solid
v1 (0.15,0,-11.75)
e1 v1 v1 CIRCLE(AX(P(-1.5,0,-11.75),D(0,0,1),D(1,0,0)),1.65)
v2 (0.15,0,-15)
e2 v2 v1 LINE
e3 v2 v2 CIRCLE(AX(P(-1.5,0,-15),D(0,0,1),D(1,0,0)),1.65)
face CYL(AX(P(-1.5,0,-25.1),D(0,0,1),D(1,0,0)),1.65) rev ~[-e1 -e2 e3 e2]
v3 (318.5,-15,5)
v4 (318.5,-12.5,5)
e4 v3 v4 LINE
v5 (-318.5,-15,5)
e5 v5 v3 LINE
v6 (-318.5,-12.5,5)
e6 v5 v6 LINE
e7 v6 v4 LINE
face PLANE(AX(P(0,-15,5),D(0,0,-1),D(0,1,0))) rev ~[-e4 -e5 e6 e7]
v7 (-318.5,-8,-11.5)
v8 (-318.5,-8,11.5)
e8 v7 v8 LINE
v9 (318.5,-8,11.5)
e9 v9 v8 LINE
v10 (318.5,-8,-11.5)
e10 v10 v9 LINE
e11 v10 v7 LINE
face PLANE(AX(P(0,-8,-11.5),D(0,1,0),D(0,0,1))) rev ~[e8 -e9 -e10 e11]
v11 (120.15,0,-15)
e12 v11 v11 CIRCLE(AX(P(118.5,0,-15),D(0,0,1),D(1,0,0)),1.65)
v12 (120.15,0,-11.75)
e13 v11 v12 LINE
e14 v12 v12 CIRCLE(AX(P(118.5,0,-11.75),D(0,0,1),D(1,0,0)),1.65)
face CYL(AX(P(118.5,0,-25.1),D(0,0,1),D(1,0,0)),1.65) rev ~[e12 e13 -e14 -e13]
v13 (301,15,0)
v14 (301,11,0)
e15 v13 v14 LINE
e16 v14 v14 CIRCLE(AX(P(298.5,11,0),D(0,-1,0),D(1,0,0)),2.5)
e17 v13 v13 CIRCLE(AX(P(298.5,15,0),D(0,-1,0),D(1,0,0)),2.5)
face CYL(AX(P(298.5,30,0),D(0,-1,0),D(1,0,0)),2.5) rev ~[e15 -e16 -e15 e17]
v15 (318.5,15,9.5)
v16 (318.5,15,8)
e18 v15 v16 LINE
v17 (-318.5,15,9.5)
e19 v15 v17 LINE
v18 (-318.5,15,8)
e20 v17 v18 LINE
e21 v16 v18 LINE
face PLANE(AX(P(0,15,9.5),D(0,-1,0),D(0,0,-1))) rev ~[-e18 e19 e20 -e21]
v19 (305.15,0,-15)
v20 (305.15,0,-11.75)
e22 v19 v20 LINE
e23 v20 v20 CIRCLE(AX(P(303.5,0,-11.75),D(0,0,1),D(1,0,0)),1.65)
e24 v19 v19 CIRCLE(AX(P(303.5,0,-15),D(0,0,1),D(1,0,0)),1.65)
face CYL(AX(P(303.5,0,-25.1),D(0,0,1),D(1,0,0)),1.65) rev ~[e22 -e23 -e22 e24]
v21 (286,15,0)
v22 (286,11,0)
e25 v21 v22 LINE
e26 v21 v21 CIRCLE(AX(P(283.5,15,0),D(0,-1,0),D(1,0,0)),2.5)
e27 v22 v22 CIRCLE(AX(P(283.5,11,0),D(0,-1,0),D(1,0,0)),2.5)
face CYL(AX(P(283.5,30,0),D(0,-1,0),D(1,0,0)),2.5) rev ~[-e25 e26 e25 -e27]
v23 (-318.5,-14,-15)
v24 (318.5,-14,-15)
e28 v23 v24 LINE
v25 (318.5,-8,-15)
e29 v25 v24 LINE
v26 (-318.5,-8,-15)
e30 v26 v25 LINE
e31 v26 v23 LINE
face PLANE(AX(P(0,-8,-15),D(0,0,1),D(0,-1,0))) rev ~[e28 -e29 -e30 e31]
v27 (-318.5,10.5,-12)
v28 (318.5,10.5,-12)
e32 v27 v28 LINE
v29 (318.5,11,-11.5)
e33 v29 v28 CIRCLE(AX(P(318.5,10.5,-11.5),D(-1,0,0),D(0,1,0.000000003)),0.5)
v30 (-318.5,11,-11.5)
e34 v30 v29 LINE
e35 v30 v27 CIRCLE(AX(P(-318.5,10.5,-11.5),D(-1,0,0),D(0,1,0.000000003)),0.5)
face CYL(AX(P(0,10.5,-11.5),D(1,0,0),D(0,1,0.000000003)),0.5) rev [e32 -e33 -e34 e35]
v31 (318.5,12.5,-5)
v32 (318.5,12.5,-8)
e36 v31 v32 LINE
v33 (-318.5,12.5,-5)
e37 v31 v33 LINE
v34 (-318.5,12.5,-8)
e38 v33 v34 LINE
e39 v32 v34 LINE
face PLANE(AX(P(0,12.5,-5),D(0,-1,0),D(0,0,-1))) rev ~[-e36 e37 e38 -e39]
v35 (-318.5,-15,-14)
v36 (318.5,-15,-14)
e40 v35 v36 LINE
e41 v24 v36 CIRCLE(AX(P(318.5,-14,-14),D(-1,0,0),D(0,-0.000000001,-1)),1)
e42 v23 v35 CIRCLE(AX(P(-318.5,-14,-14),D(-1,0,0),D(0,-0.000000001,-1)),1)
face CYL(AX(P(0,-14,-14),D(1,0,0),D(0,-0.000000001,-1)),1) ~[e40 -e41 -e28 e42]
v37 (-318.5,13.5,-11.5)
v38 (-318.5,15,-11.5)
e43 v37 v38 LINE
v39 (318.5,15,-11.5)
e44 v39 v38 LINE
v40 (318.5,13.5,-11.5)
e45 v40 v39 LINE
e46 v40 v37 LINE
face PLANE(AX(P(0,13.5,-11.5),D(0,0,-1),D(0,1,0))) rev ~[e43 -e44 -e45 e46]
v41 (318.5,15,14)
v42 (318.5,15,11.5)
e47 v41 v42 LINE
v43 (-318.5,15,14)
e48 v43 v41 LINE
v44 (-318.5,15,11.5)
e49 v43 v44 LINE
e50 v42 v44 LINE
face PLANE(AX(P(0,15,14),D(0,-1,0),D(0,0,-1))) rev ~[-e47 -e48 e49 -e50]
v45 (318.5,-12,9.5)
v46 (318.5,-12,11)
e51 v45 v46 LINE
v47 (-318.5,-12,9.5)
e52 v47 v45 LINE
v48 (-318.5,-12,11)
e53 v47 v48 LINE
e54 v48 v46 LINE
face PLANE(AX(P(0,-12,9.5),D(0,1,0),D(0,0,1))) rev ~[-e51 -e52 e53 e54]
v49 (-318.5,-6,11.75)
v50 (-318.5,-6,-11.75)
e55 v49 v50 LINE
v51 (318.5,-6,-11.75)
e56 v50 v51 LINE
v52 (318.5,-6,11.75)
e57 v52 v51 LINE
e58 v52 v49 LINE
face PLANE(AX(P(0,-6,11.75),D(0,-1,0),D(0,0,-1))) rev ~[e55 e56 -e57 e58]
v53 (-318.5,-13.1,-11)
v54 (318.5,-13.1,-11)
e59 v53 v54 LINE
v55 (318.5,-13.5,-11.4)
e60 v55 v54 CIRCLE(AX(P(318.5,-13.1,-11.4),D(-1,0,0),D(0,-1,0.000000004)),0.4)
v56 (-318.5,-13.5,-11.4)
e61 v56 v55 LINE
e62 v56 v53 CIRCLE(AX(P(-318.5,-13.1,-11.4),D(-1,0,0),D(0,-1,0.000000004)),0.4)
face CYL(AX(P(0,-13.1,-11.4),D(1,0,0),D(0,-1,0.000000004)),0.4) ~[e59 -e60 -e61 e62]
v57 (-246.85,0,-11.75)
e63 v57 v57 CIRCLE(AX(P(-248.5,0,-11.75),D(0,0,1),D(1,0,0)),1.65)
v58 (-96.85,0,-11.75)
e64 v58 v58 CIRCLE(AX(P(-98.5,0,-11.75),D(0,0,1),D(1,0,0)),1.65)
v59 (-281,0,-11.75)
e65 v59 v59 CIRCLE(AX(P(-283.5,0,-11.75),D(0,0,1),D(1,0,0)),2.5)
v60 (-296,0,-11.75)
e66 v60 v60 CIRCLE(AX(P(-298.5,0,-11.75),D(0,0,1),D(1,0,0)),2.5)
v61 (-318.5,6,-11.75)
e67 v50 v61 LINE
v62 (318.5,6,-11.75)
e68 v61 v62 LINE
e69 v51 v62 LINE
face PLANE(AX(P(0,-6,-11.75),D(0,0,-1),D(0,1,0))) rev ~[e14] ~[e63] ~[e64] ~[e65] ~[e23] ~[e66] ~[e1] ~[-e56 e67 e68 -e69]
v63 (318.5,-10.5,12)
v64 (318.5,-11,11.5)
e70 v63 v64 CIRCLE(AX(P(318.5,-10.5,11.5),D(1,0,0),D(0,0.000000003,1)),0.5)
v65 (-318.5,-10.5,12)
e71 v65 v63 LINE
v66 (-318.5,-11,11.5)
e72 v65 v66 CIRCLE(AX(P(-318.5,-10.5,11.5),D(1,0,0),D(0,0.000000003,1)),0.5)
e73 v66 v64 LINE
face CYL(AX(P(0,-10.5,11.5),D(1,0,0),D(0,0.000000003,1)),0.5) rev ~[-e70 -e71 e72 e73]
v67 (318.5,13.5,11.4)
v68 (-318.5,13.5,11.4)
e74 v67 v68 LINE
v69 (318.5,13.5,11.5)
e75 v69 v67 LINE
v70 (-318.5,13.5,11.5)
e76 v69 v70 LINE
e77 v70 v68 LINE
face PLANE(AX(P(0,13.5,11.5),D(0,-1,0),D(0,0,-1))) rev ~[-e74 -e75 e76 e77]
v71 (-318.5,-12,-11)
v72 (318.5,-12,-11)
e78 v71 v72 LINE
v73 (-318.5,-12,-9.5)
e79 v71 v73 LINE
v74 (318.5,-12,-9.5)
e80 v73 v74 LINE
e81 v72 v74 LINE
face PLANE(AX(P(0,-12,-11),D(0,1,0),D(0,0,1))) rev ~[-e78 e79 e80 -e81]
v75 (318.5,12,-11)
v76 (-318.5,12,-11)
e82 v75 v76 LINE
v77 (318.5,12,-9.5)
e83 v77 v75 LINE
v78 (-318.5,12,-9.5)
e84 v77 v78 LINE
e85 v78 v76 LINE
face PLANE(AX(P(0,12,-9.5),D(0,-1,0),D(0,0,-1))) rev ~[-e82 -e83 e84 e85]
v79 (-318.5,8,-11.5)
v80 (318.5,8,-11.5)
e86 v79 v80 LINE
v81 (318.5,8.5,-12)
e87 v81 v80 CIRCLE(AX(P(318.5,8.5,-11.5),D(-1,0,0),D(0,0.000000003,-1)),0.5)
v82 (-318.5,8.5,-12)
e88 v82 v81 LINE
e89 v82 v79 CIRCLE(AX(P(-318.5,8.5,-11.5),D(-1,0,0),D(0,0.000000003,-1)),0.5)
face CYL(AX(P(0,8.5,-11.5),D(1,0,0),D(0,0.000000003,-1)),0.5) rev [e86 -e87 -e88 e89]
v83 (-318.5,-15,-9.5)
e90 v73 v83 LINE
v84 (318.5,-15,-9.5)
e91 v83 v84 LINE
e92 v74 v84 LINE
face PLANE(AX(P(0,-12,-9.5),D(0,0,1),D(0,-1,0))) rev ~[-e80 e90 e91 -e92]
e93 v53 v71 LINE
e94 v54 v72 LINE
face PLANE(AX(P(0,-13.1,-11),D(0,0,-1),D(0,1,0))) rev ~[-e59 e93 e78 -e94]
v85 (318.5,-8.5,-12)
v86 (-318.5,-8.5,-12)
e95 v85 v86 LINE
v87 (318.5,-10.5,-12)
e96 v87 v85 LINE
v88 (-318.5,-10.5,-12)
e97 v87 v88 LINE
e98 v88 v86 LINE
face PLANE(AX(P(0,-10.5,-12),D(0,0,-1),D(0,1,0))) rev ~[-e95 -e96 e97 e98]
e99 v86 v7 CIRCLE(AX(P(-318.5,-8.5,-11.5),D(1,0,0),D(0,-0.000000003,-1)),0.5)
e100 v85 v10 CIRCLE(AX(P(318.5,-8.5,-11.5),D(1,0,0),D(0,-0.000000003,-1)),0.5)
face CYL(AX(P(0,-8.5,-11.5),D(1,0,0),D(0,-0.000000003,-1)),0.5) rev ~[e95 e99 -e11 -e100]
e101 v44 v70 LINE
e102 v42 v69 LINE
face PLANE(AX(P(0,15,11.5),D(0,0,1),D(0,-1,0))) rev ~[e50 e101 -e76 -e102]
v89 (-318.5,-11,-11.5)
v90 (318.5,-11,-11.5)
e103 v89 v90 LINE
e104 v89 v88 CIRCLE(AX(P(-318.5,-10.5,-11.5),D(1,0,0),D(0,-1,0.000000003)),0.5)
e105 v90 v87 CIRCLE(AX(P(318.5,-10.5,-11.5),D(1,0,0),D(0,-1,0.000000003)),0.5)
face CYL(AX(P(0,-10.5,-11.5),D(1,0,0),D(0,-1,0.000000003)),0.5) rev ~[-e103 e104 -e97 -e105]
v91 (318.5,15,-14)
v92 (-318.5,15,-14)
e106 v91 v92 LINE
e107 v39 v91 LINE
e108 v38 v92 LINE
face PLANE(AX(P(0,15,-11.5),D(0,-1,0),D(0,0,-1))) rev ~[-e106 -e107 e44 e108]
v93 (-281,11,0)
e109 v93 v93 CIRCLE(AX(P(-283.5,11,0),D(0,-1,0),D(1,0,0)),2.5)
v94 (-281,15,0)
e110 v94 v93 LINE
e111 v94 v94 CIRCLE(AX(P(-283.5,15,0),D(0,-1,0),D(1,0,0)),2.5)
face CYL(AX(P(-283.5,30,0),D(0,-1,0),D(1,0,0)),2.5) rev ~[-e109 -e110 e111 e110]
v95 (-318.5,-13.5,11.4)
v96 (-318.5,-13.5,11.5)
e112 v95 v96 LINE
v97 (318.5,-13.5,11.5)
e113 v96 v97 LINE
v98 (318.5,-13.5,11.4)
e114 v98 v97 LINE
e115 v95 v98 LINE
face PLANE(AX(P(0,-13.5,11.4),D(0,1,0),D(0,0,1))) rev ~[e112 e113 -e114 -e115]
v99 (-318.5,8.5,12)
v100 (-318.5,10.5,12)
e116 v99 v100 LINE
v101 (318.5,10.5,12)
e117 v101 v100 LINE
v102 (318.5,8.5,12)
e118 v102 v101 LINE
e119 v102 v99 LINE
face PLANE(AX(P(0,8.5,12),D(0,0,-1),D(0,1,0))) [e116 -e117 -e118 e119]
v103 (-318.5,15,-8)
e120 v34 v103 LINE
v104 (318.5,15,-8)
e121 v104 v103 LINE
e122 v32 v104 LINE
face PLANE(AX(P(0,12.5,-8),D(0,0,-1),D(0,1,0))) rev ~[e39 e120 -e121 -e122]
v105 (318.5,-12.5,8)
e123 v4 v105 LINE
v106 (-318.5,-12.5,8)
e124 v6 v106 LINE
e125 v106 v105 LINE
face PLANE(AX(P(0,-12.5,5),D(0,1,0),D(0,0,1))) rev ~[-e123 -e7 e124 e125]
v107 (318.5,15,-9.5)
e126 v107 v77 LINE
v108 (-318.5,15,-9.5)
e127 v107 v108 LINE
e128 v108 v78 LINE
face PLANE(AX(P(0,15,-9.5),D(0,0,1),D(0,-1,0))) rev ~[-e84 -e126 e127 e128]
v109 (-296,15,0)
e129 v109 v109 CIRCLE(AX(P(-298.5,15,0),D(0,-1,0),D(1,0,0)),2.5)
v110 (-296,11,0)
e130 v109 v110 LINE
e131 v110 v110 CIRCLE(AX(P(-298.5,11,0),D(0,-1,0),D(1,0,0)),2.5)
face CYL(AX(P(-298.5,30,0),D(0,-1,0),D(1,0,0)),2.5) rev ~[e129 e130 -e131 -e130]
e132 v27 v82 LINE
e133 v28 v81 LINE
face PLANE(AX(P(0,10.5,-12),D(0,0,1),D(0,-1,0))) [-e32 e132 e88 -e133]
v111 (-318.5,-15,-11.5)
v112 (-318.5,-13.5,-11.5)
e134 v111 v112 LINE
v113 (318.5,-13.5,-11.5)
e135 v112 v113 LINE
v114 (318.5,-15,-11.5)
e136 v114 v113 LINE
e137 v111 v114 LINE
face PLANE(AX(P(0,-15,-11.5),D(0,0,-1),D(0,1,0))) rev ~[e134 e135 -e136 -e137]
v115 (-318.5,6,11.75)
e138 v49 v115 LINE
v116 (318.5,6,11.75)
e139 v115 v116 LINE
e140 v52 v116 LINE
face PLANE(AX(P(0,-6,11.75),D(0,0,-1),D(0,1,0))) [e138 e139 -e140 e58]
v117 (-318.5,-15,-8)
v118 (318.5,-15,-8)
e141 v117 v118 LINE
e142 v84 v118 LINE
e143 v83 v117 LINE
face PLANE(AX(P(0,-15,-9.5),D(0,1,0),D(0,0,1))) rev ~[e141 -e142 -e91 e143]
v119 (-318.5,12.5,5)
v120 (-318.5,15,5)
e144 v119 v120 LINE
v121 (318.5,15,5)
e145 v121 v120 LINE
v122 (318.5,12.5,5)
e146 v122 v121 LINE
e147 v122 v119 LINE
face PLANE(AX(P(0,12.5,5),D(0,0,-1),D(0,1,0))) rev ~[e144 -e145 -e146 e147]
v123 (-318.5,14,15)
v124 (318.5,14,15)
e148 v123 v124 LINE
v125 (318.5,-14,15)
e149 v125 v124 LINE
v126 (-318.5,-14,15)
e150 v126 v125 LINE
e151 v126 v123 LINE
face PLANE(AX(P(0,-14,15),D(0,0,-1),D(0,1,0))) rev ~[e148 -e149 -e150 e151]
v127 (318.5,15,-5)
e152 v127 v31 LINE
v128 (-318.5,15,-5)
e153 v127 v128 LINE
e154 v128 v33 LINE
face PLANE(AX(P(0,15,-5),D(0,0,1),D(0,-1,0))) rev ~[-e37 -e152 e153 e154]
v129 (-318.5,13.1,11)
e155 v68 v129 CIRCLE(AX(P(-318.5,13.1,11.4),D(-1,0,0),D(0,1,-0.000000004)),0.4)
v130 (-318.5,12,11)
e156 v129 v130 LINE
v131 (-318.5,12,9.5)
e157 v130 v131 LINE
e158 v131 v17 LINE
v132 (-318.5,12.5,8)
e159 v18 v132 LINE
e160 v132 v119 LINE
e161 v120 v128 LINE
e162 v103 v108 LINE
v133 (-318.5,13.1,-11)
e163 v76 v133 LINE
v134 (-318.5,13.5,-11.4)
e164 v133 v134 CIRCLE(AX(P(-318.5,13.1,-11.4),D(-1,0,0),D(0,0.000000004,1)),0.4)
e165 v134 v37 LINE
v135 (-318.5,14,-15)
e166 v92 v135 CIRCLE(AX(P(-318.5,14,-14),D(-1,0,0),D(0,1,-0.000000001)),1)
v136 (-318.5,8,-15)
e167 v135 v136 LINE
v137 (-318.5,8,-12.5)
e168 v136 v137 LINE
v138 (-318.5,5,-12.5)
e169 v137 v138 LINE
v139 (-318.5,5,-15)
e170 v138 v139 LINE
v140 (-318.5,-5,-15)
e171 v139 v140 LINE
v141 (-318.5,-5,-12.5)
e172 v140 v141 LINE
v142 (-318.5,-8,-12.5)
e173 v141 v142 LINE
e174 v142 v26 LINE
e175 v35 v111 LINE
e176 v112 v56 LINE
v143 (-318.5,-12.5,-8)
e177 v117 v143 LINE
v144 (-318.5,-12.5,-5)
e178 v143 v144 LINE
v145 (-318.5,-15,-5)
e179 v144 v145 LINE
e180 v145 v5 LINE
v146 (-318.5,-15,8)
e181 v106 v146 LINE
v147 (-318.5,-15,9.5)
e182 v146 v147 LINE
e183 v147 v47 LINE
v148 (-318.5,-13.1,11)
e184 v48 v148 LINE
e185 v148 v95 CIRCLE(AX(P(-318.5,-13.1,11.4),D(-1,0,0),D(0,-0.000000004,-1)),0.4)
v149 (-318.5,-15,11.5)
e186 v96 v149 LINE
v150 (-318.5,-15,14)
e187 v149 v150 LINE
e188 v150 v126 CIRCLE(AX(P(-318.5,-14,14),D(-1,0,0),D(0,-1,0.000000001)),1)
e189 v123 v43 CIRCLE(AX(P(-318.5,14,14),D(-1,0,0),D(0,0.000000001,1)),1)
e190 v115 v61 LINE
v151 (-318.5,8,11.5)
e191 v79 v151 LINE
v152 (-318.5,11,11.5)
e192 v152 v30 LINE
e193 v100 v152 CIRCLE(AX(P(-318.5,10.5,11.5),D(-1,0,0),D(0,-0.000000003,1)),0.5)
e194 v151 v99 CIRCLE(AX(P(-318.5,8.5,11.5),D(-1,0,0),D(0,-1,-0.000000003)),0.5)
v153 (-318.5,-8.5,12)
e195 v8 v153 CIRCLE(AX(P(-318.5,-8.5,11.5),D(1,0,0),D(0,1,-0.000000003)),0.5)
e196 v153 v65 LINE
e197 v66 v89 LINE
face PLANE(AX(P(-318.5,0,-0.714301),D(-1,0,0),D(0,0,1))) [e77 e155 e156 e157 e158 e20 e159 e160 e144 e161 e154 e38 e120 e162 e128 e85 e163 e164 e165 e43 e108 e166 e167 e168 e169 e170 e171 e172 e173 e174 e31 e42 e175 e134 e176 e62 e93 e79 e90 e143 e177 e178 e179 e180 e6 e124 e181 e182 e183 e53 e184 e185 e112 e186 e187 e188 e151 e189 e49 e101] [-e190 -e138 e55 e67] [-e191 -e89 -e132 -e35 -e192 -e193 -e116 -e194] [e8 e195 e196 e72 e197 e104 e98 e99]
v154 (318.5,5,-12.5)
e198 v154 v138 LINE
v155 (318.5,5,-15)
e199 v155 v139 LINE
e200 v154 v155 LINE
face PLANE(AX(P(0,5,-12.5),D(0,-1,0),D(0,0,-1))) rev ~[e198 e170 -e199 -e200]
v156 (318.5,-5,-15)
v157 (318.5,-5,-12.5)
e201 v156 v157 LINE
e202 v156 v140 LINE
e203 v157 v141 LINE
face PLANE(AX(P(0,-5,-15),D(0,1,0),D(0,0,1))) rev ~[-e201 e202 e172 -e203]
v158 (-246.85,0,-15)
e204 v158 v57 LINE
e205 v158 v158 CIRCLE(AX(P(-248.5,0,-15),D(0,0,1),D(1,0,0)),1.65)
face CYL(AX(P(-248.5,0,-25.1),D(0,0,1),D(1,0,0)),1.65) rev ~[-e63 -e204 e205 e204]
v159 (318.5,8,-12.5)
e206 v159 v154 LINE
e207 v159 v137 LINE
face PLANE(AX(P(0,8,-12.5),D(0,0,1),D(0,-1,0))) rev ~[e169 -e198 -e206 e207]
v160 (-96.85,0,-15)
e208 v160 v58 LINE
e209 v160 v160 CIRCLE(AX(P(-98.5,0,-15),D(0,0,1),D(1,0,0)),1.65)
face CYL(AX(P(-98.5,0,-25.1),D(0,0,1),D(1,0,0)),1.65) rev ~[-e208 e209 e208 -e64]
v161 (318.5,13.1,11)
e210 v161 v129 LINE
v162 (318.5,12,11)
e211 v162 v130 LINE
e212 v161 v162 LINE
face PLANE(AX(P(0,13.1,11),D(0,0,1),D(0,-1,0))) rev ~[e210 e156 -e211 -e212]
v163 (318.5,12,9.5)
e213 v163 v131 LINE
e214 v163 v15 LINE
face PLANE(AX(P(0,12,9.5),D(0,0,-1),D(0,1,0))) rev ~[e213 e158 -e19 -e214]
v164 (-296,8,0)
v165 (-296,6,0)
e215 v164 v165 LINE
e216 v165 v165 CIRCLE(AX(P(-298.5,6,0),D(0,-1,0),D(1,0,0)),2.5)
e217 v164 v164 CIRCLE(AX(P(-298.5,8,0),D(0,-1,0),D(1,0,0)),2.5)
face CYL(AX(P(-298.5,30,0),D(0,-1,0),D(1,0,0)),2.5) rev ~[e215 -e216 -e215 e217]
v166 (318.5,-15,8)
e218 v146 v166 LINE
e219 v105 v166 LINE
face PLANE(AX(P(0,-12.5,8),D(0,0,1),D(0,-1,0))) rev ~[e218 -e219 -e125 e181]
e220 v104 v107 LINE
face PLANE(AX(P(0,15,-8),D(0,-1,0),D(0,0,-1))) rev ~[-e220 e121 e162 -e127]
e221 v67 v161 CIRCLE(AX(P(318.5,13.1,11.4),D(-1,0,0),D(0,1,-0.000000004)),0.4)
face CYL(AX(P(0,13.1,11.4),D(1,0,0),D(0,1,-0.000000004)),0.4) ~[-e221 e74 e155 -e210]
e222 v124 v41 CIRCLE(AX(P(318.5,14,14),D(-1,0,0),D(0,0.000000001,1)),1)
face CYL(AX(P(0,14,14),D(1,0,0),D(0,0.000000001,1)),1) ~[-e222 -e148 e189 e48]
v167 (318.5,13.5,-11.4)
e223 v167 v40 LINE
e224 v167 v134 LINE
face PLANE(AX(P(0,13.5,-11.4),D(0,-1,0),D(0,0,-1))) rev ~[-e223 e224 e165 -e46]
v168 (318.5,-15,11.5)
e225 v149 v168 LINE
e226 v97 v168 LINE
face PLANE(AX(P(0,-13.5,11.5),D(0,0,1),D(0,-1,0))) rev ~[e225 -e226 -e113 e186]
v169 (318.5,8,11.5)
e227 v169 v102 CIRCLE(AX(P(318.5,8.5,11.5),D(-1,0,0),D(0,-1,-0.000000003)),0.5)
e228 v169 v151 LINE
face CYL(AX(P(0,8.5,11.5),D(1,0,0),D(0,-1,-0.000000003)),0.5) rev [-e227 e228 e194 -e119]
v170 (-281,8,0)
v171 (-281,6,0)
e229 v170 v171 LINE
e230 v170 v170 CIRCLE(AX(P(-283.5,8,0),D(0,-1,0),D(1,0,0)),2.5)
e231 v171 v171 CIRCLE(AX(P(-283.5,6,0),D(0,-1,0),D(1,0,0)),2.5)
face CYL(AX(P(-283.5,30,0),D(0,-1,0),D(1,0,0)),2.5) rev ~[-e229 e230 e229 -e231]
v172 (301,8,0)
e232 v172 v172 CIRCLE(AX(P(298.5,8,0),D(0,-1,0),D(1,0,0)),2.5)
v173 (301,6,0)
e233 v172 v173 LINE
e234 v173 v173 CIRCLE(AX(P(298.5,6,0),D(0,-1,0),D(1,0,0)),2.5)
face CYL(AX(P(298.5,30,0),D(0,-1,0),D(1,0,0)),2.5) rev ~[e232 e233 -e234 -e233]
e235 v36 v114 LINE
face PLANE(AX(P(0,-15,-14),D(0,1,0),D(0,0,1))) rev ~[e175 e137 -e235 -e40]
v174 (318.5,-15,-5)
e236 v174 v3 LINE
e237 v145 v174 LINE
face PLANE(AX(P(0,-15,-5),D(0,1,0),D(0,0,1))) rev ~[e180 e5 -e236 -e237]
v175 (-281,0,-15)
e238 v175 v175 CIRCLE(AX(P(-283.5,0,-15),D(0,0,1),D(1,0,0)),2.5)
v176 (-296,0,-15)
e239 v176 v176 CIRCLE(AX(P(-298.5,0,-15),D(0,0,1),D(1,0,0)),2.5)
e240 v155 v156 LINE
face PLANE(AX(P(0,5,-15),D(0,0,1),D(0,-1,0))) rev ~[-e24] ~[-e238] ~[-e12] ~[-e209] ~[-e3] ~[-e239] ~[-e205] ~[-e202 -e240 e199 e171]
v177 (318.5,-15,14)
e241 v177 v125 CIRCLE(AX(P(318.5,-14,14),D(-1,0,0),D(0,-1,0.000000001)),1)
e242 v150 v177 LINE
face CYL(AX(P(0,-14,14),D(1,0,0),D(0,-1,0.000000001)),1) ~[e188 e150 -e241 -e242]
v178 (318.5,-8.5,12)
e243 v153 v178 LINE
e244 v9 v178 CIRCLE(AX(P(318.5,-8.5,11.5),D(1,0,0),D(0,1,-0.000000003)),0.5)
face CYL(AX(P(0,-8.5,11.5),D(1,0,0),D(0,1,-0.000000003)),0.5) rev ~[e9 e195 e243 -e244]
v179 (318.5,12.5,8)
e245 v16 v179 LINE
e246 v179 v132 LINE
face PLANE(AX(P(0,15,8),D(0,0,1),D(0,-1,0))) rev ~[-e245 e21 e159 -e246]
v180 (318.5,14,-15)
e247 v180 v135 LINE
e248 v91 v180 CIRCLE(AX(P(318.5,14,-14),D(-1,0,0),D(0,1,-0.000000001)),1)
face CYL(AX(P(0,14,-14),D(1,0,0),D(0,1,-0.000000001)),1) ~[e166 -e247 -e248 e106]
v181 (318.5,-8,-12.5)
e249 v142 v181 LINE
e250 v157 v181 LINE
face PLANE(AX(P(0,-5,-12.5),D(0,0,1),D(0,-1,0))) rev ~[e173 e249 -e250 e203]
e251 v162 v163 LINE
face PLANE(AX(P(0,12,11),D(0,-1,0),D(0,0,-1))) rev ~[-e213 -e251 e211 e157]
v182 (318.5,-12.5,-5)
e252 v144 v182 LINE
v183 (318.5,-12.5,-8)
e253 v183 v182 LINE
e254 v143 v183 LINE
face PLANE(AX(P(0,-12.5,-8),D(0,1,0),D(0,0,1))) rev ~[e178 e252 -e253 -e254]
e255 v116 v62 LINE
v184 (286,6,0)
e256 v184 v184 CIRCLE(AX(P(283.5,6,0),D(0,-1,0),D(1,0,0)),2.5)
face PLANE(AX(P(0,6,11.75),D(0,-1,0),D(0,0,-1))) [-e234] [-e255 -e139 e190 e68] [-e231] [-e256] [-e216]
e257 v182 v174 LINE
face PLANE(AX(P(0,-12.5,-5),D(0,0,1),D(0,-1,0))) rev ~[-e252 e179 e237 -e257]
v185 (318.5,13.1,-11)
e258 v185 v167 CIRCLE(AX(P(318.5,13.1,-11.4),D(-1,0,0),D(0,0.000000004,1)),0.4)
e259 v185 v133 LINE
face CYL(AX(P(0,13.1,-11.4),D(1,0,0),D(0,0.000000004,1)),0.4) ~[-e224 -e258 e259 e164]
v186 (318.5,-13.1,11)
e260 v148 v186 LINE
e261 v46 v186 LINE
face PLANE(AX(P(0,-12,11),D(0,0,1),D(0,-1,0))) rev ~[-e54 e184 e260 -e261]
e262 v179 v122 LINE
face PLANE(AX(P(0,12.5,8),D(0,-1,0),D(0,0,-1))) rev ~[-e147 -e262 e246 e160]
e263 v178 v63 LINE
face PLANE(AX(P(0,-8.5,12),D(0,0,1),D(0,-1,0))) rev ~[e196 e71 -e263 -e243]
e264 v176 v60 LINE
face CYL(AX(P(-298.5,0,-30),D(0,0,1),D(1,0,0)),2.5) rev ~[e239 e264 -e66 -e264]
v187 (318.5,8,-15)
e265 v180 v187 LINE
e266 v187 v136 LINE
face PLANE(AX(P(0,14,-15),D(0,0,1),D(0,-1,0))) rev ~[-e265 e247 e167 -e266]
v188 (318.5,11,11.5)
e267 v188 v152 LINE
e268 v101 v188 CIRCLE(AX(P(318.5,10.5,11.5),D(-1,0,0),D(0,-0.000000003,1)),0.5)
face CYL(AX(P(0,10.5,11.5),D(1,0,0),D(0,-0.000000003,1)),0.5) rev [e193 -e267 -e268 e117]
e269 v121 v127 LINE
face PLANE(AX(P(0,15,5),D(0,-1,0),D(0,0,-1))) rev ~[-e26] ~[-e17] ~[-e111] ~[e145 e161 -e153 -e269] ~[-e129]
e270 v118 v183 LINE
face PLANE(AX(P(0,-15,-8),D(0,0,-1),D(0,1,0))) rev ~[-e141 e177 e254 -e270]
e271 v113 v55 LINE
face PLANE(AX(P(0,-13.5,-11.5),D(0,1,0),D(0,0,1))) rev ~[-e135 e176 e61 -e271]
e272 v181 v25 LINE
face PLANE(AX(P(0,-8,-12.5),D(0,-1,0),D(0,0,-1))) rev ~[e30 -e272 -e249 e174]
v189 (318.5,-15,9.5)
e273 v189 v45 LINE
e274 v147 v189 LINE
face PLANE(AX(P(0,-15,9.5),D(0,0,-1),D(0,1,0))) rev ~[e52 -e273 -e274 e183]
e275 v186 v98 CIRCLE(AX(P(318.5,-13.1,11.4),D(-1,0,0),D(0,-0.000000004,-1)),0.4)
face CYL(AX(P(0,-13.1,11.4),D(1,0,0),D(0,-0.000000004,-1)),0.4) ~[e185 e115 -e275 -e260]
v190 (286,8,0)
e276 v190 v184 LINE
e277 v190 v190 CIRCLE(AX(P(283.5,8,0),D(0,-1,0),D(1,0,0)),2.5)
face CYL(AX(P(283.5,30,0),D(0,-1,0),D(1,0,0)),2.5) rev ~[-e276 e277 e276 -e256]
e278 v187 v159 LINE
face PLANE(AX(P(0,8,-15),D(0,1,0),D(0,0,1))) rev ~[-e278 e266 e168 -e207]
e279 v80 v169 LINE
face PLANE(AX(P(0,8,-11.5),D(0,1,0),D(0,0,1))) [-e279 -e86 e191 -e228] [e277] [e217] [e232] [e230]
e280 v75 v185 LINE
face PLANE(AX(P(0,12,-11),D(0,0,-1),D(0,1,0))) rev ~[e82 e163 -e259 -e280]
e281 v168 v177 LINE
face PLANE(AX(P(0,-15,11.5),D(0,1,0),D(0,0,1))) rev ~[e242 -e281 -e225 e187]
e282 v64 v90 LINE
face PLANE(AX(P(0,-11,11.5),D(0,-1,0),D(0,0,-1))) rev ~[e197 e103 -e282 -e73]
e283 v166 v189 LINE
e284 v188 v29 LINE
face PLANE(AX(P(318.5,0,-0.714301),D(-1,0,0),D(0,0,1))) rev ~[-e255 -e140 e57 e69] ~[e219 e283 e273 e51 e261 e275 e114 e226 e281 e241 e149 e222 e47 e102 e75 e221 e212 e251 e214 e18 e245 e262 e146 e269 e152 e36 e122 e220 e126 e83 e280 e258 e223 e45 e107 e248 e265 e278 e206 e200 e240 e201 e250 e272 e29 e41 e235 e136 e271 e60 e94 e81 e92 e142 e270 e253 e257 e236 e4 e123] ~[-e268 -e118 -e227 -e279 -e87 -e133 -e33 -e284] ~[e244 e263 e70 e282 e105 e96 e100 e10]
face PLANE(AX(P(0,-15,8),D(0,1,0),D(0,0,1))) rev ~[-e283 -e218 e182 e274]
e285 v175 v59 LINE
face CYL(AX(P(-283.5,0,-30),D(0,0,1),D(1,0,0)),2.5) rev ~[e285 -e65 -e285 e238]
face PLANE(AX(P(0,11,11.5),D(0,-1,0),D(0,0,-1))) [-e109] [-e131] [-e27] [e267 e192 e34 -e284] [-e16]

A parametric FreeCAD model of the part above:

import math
import FreeCAD as App
import Part
import Sketcher
from FreeCAD import Vector


def add_polygon(sketch, points):
    """Adds a closed chain of lines whose ends are joined by coincident constraints."""
    first, n = sketch.GeometryCount, len(points)
    for a, b in zip(points, points[1:] + points[:1]):
        sketch.addGeometry(Part.LineSegment(App.Vector(*a, 0), App.Vector(*b, 0)), False)
    for i in range(n):
        sketch.addConstraint(Sketcher.Constraint("Coincident", first + i, 2, first + (i + 1) % n, 1))

doc = App.newDocument("Part")
body = doc.addObject("PartDesign::Body", "Body")

# Sketch on YZ plane
sketch1 = body.newObject("Sketcher::SketchObject", "Sketch")
sketch1.AttachmentSupport = (doc.getObject("YZ_Plane"), [""])
sketch1.MapMode = "FlatFace"
sketch1.addGeometry(Part.LineSegment(Vector(15, 11.5, 0), Vector(15, 14, 0)), False)  # 0
sketch1.addGeometry(Part.ArcOfCircle(Part.Circle(Vector(14, 14, 0), Vector(0, 0, 1), 1), math.radians(0), math.radians(90)), False)  # 1
sketch1.addGeometry(Part.LineSegment(Vector(14, 15, 0), Vector(-14, 15, 0)), False)  # 2
sketch1.addGeometry(Part.ArcOfCircle(Part.Circle(Vector(-14, 14, 0), Vector(0, 0, 1), 1), math.radians(90), math.radians(180)), False)  # 3
sketch1.addGeometry(Part.LineSegment(Vector(-15, 14, 0), Vector(-15, 11.5, 0)), False)  # 4
sketch1.addGeometry(Part.LineSegment(Vector(-15, 11.5, 0), Vector(-13.5, 11.5, 0)), False)  # 5
sketch1.addGeometry(Part.LineSegment(Vector(-13.5, 11.5, 0), Vector(-13.5, 11.4, 0)), False)  # 6
sketch1.addGeometry(Part.ArcOfCircle(Part.Circle(Vector(-13.1, 11.4, 0), Vector(0, 0, 1), 0.4), math.radians(-180), math.radians(-90)), False)  # 7
sketch1.addGeometry(Part.LineSegment(Vector(-13.1, 11, 0), Vector(-12, 11, 0)), False)  # 8
sketch1.addGeometry(Part.LineSegment(Vector(-12, 11, 0), Vector(-12, 9.5, 0)), False)  # 9
sketch1.addGeometry(Part.LineSegment(Vector(-12, 9.5, 0), Vector(-15, 9.5, 0)), False)  # 10
sketch1.addGeometry(Part.LineSegment(Vector(-15, 9.5, 0), Vector(-15, 8, 0)), False)  # 11
sketch1.addGeometry(Part.LineSegment(Vector(-15, 8, 0), Vector(-12.5, 8, 0)), False)  # 12
sketch1.addGeometry(Part.LineSegment(Vector(-12.5, 8, 0), Vector(-12.5, 5, 0)), False)  # 13
sketch1.addGeometry(Part.LineSegment(Vector(-12.5, 5, 0), Vector(-15, 5, 0)), False)  # 14
sketch1.addGeometry(Part.LineSegment(Vector(-15, 5, 0), Vector(-15, -5, 0)), False)  # 15
sketch1.addGeometry(Part.LineSegment(Vector(-15, -5, 0), Vector(-12.5, -5, 0)), False)  # 16
sketch1.addGeometry(Part.LineSegment(Vector(-12.5, -5, 0), Vector(-12.5, -8, 0)), False)  # 17
sketch1.addGeometry(Part.LineSegment(Vector(-12.5, -8, 0), Vector(-15, -8, 0)), False)  # 18
sketch1.addGeometry(Part.LineSegment(Vector(-15, -8, 0), Vector(-15, -9.5, 0)), False)  # 19
sketch1.addGeometry(Part.LineSegment(Vector(-15, -9.5, 0), Vector(-12, -9.5, 0)), False)  # 20
sketch1.addGeometry(Part.LineSegment(Vector(-12, -9.5, 0), Vector(-12, -11, 0)), False)  # 21
sketch1.addGeometry(Part.LineSegment(Vector(-12, -11, 0), Vector(-13.1, -11, 0)), False)  # 22
sketch1.addGeometry(Part.ArcOfCircle(Part.Circle(Vector(-13.1, -11.4, 0), Vector(0, 0, 1), 0.4), math.radians(90), math.radians(180)), False)  # 23
sketch1.addGeometry(Part.LineSegment(Vector(-13.5, -11.4, 0), Vector(-13.5, -11.5, 0)), False)  # 24
sketch1.addGeometry(Part.LineSegment(Vector(-13.5, -11.5, 0), Vector(-15, -11.5, 0)), False)  # 25
sketch1.addGeometry(Part.LineSegment(Vector(-15, -11.5, 0), Vector(-15, -14, 0)), False)  # 26
sketch1.addGeometry(Part.ArcOfCircle(Part.Circle(Vector(-14, -14, 0), Vector(0, 0, 1), 1), math.radians(-180), math.radians(-90)), False)  # 27
sketch1.addGeometry(Part.LineSegment(Vector(-14, -15, 0), Vector(-8, -15, 0)), False)  # 28
sketch1.addGeometry(Part.LineSegment(Vector(-8, -15, 0), Vector(-8, -12.5, 0)), False)  # 29
sketch1.addGeometry(Part.LineSegment(Vector(-8, -12.5, 0), Vector(-5, -12.5, 0)), False)  # 30
sketch1.addGeometry(Part.LineSegment(Vector(-5, -12.5, 0), Vector(-5, -15, 0)), False)  # 31
sketch1.addGeometry(Part.LineSegment(Vector(-5, -15, 0), Vector(5, -15, 0)), False)  # 32
sketch1.addGeometry(Part.LineSegment(Vector(5, -15, 0), Vector(5, -12.5, 0)), False)  # 33
sketch1.addGeometry(Part.LineSegment(Vector(5, -12.5, 0), Vector(8, -12.5, 0)), False)  # 34
sketch1.addGeometry(Part.LineSegment(Vector(8, -12.5, 0), Vector(8, -15, 0)), False)  # 35
sketch1.addGeometry(Part.LineSegment(Vector(8, -15, 0), Vector(14, -15, 0)), False)  # 36
sketch1.addGeometry(Part.ArcOfCircle(Part.Circle(Vector(14, -14, 0), Vector(0, 0, 1), 1), math.radians(-90), math.radians(0)), False)  # 37
sketch1.addGeometry(Part.LineSegment(Vector(15, -14, 0), Vector(15, -11.5, 0)), False)  # 38
sketch1.addGeometry(Part.LineSegment(Vector(15, -11.5, 0), Vector(13.5, -11.5, 0)), False)  # 39
sketch1.addGeometry(Part.LineSegment(Vector(13.5, -11.5, 0), Vector(13.5, -11.4, 0)), False)  # 40
sketch1.addGeometry(Part.ArcOfCircle(Part.Circle(Vector(13.1, -11.4, 0), Vector(0, 0, 1), 0.4), math.radians(0), math.radians(90)), False)  # 41
sketch1.addGeometry(Part.LineSegment(Vector(13.1, -11, 0), Vector(12, -11, 0)), False)  # 42
sketch1.addGeometry(Part.LineSegment(Vector(12, -11, 0), Vector(12, -9.5, 0)), False)  # 43
sketch1.addGeometry(Part.LineSegment(Vector(12, -9.5, 0), Vector(15, -9.5, 0)), False)  # 44
sketch1.addGeometry(Part.LineSegment(Vector(15, -9.5, 0), Vector(15, -8, 0)), False)  # 45
sketch1.addGeometry(Part.LineSegment(Vector(15, -8, 0), Vector(12.5, -8, 0)), False)  # 46
sketch1.addGeometry(Part.LineSegment(Vector(12.5, -8, 0), Vector(12.5, -5, 0)), False)  # 47
sketch1.addGeometry(Part.LineSegment(Vector(12.5, -5, 0), Vector(15, -5, 0)), False)  # 48
sketch1.addGeometry(Part.LineSegment(Vector(15, -5, 0), Vector(15, 5, 0)), False)  # 49
sketch1.addGeometry(Part.LineSegment(Vector(15, 5, 0), Vector(12.5, 5, 0)), False)  # 50
sketch1.addGeometry(Part.LineSegment(Vector(12.5, 5, 0), Vector(12.5, 8, 0)), False)  # 51
sketch1.addGeometry(Part.LineSegment(Vector(12.5, 8, 0), Vector(15, 8, 0)), False)  # 52
sketch1.addGeometry(Part.LineSegment(Vector(15, 8, 0), Vector(15, 9.5, 0)), False)  # 53
sketch1.addGeometry(Part.LineSegment(Vector(15, 9.5, 0), Vector(12, 9.5, 0)), False)  # 54
sketch1.addGeometry(Part.LineSegment(Vector(12, 9.5, 0), Vector(12, 11, 0)), False)  # 55
sketch1.addGeometry(Part.LineSegment(Vector(12, 11, 0), Vector(13.1, 11, 0)), False)  # 56
sketch1.addGeometry(Part.ArcOfCircle(Part.Circle(Vector(13.1, 11.4, 0), Vector(0, 0, 1), 0.4), math.radians(-90), math.radians(0)), False)  # 57
sketch1.addGeometry(Part.LineSegment(Vector(13.5, 11.4, 0), Vector(13.5, 11.5, 0)), False)  # 58
sketch1.addGeometry(Part.LineSegment(Vector(13.5, 11.5, 0), Vector(15, 11.5, 0)), False)  # 59
sketch1.addGeometry(Part.ArcOfCircle(Part.Circle(Vector(-10.5, -11.5, 0), Vector(0, 0, 1), 0.5), math.radians(180), math.radians(270)), False)  # 60
sketch1.addGeometry(Part.LineSegment(Vector(-11, -11.5, 0), Vector(-11, 11.5, 0)), False)  # 61
sketch1.addGeometry(Part.ArcOfCircle(Part.Circle(Vector(-10.5, 11.5, 0), Vector(0, 0, 1), 0.5), math.radians(90), math.radians(180)), False)  # 62
sketch1.addGeometry(Part.LineSegment(Vector(-10.5, 12, 0), Vector(-8.5, 12, 0)), False)  # 63
sketch1.addGeometry(Part.ArcOfCircle(Part.Circle(Vector(-8.5, 11.5, 0), Vector(0, 0, 1), 0.5), math.radians(0), math.radians(90)), False)  # 64
sketch1.addGeometry(Part.LineSegment(Vector(-8, 11.5, 0), Vector(-8, -11.5, 0)), False)  # 65
sketch1.addGeometry(Part.ArcOfCircle(Part.Circle(Vector(-8.5, -11.5, 0), Vector(0, 0, 1), 0.5), math.radians(-90), math.radians(0)), False)  # 66
sketch1.addGeometry(Part.LineSegment(Vector(-8.5, -12, 0), Vector(-10.5, -12, 0)), False)  # 67
add_polygon(sketch1, [(-6, 11.75), (6, 11.75), (6, -11.75), (-6, -11.75)])  # lines 68-71
sketch1.addGeometry(Part.LineSegment(Vector(11, 11.5, 0), Vector(11, -11.5, 0)), False)  # 72
sketch1.addGeometry(Part.ArcOfCircle(Part.Circle(Vector(10.5, -11.5, 0), Vector(0, 0, 1), 0.5), math.radians(-90), math.radians(0)), False)  # 73
sketch1.addGeometry(Part.LineSegment(Vector(10.5, -12, 0), Vector(8.5, -12, 0)), False)  # 74
sketch1.addGeometry(Part.ArcOfCircle(Part.Circle(Vector(8.5, -11.5, 0), Vector(0, 0, 1), 0.5), math.radians(180), math.radians(270)), False)  # 75
sketch1.addGeometry(Part.LineSegment(Vector(8, -11.5, 0), Vector(8, 11.5, 0)), False)  # 76
sketch1.addGeometry(Part.ArcOfCircle(Part.Circle(Vector(8.5, 11.5, 0), Vector(0, 0, 1), 0.5), math.radians(90), math.radians(180)), False)  # 77
sketch1.addGeometry(Part.LineSegment(Vector(8.5, 12, 0), Vector(10.5, 12, 0)), False)  # 78
sketch1.addGeometry(Part.ArcOfCircle(Part.Circle(Vector(10.5, 11.5, 0), Vector(0, 0, 1), 0.5), math.radians(0), math.radians(90)), False)  # 79
sketch1.addConstraint([
    Sketcher.Constraint("Tangent", 0, 2, 1, 1),
    Sketcher.Constraint("Tangent", 1, 2, 2, 1),
    Sketcher.Constraint("Tangent", 2, 2, 3, 1),
    Sketcher.Constraint("Tangent", 3, 2, 4, 1),
    Sketcher.Constraint("Coincident", 4, 2, 5, 1),
    Sketcher.Constraint("Coincident", 5, 2, 6, 1),
    Sketcher.Constraint("Tangent", 6, 2, 7, 1),
    Sketcher.Constraint("Tangent", 7, 2, 8, 1),
    Sketcher.Constraint("Coincident", 8, 2, 9, 1),
    Sketcher.Constraint("Coincident", 9, 2, 10, 1),
    Sketcher.Constraint("Coincident", 10, 2, 11, 1),
    Sketcher.Constraint("Coincident", 11, 2, 12, 1),
    Sketcher.Constraint("Coincident", 12, 2, 13, 1),
    Sketcher.Constraint("Coincident", 13, 2, 14, 1),
    Sketcher.Constraint("Coincident", 14, 2, 15, 1),
    Sketcher.Constraint("Coincident", 15, 2, 16, 1),
    Sketcher.Constraint("Coincident", 16, 2, 17, 1),
    Sketcher.Constraint("Coincident", 17, 2, 18, 1),
    Sketcher.Constraint("Coincident", 18, 2, 19, 1),
    Sketcher.Constraint("Coincident", 19, 2, 20, 1),
    Sketcher.Constraint("Coincident", 20, 2, 21, 1),
    Sketcher.Constraint("Coincident", 21, 2, 22, 1),
    Sketcher.Constraint("Tangent", 22, 2, 23, 1),
    Sketcher.Constraint("Tangent", 23, 2, 24, 1),
    Sketcher.Constraint("Coincident", 24, 2, 25, 1),
    Sketcher.Constraint("Coincident", 25, 2, 26, 1),
    Sketcher.Constraint("Tangent", 26, 2, 27, 1),
    Sketcher.Constraint("Tangent", 27, 2, 28, 1),
    Sketcher.Constraint("Coincident", 28, 2, 29, 1),
    Sketcher.Constraint("Coincident", 29, 2, 30, 1),
    Sketcher.Constraint("Coincident", 30, 2, 31, 1),
    Sketcher.Constraint("Coincident", 31, 2, 32, 1),
    Sketcher.Constraint("Coincident", 32, 2, 33, 1),
    Sketcher.Constraint("Coincident", 33, 2, 34, 1),
    Sketcher.Constraint("Coincident", 34, 2, 35, 1),
    Sketcher.Constraint("Coincident", 35, 2, 36, 1),
    Sketcher.Constraint("Tangent", 36, 2, 37, 1),
    Sketcher.Constraint("Tangent", 37, 2, 38, 1),
    Sketcher.Constraint("Coincident", 38, 2, 39, 1),
    Sketcher.Constraint("Coincident", 39, 2, 40, 1),
    Sketcher.Constraint("Tangent", 40, 2, 41, 1),
    Sketcher.Constraint("Tangent", 41, 2, 42, 1),
    Sketcher.Constraint("Coincident", 42, 2, 43, 1),
    Sketcher.Constraint("Coincident", 43, 2, 44, 1),
    Sketcher.Constraint("Coincident", 44, 2, 45, 1),
    Sketcher.Constraint("Coincident", 45, 2, 46, 1),
    Sketcher.Constraint("Coincident", 46, 2, 47, 1),
    Sketcher.Constraint("Coincident", 47, 2, 48, 1),
    Sketcher.Constraint("Coincident", 48, 2, 49, 1),
    Sketcher.Constraint("Coincident", 49, 2, 50, 1),
    Sketcher.Constraint("Coincident", 50, 2, 51, 1),
    Sketcher.Constraint("Coincident", 51, 2, 52, 1),
    Sketcher.Constraint("Coincident", 52, 2, 53, 1),
    Sketcher.Constraint("Coincident", 53, 2, 54, 1),
    Sketcher.Constraint("Coincident", 54, 2, 55, 1),
    Sketcher.Constraint("Coincident", 55, 2, 56, 1),
    Sketcher.Constraint("Tangent", 56, 2, 57, 1),
    Sketcher.Constraint("Tangent", 57, 2, 58, 1),
    Sketcher.Constraint("Coincident", 58, 2, 59, 1),
    Sketcher.Constraint("Coincident", 59, 2, 0, 1),
    Sketcher.Constraint("Tangent", 60, 1, 61, 1),
    Sketcher.Constraint("Tangent", 61, 2, 62, 2),
    Sketcher.Constraint("Tangent", 62, 1, 63, 1),
    Sketcher.Constraint("Tangent", 63, 2, 64, 2),
    Sketcher.Constraint("Tangent", 64, 1, 65, 1),
    Sketcher.Constraint("Tangent", 65, 2, 66, 2),
    Sketcher.Constraint("Tangent", 66, 1, 67, 1),
    Sketcher.Constraint("Tangent", 67, 2, 60, 2),
    Sketcher.Constraint("Tangent", 72, 2, 73, 2),
    Sketcher.Constraint("Tangent", 73, 1, 74, 1),
    Sketcher.Constraint("Tangent", 74, 2, 75, 2),
    Sketcher.Constraint("Tangent", 75, 1, 76, 1),
    Sketcher.Constraint("Tangent", 76, 2, 77, 2),
    Sketcher.Constraint("Tangent", 77, 1, 78, 1),
    Sketcher.Constraint("Tangent", 78, 2, 79, 2),
    Sketcher.Constraint("Tangent", 79, 1, 72, 1),
    Sketcher.Constraint("Vertical", 0),
    Sketcher.Constraint("Horizontal", 2),
    Sketcher.Constraint("Vertical", 4),
    Sketcher.Constraint("Horizontal", 5),
    Sketcher.Constraint("Vertical", 6),
    Sketcher.Constraint("Horizontal", 8),
    Sketcher.Constraint("Vertical", 9),
    Sketcher.Constraint("Horizontal", 10),
    Sketcher.Constraint("Vertical", 11),
    Sketcher.Constraint("Horizontal", 12),
    Sketcher.Constraint("Vertical", 13),
    Sketcher.Constraint("Horizontal", 14),
    Sketcher.Constraint("Vertical", 15),
    Sketcher.Constraint("Horizontal", 16),
    Sketcher.Constraint("Vertical", 17),
    Sketcher.Constraint("Horizontal", 18),
    Sketcher.Constraint("Vertical", 19),
    Sketcher.Constraint("Horizontal", 20),
    Sketcher.Constraint("Vertical", 21),
    Sketcher.Constraint("Horizontal", 22),
    Sketcher.Constraint("Vertical", 24),
    Sketcher.Constraint("Horizontal", 25),
    Sketcher.Constraint("Vertical", 26),
    Sketcher.Constraint("Horizontal", 28),
    Sketcher.Constraint("Vertical", 29),
    Sketcher.Constraint("Horizontal", 30),
    Sketcher.Constraint("Vertical", 31),
    Sketcher.Constraint("Horizontal", 32),
    Sketcher.Constraint("Vertical", 33),
    Sketcher.Constraint("Horizontal", 34),
    Sketcher.Constraint("Vertical", 35),
    Sketcher.Constraint("Horizontal", 36),
    Sketcher.Constraint("Vertical", 38),
    Sketcher.Constraint("Horizontal", 39),
    Sketcher.Constraint("Vertical", 40),
    Sketcher.Constraint("Horizontal", 42),
    Sketcher.Constraint("Vertical", 43),
    Sketcher.Constraint("Horizontal", 44),
    Sketcher.Constraint("Vertical", 45),
    Sketcher.Constraint("Horizontal", 46),
    Sketcher.Constraint("Vertical", 47),
    Sketcher.Constraint("Horizontal", 48),
    Sketcher.Constraint("Vertical", 49),
    Sketcher.Constraint("Horizontal", 50),
    Sketcher.Constraint("Vertical", 51),
    Sketcher.Constraint("Horizontal", 52),
    Sketcher.Constraint("Vertical", 53),
    Sketcher.Constraint("Horizontal", 54),
    Sketcher.Constraint("Vertical", 55),
    Sketcher.Constraint("Horizontal", 56),
    Sketcher.Constraint("Vertical", 58),
    Sketcher.Constraint("Horizontal", 59),
    Sketcher.Constraint("Vertical", 61),
    Sketcher.Constraint("Horizontal", 63),
    Sketcher.Constraint("Vertical", 65),
    Sketcher.Constraint("Horizontal", 67),
    Sketcher.Constraint("Horizontal", 68),
    Sketcher.Constraint("Vertical", 69),
    Sketcher.Constraint("Horizontal", 70),
    Sketcher.Constraint("Vertical", 71),
    Sketcher.Constraint("Vertical", 72),
    Sketcher.Constraint("Horizontal", 74),
    Sketcher.Constraint("Vertical", 76),
    Sketcher.Constraint("Horizontal", 78),
    Sketcher.Constraint("Equal", 1, 3),
    Sketcher.Constraint("Equal", 7, 23),
    Sketcher.Constraint("Equal", 3, 27),
    Sketcher.Constraint("Equal", 27, 37),
    Sketcher.Constraint("Equal", 23, 41),
    Sketcher.Constraint("Equal", 41, 57),
    Sketcher.Constraint("Equal", 60, 62),
    Sketcher.Constraint("Equal", 62, 64),
    Sketcher.Constraint("Equal", 64, 66),
    Sketcher.Constraint("Equal", 66, 73),
    Sketcher.Constraint("Equal", 73, 75),
    Sketcher.Constraint("Equal", 75, 77),
    Sketcher.Constraint("Equal", 77, 79),
    Sketcher.Constraint("Symmetric", 1, 3, 27, 3, -1, 1),
    Sketcher.Constraint("Symmetric", 3, 3, 37, 3, -1, 1),
    Sketcher.Constraint("Symmetric", 7, 3, 41, 3, -1, 1),
    Sketcher.Constraint("Symmetric", 23, 3, 57, 3, -1, 1),
    Sketcher.Constraint("Symmetric", 62, 3, 73, 3, -1, 1),
    Sketcher.Constraint("Symmetric", 66, 3, 77, 3, -1, 1),
    Sketcher.Constraint("Symmetric", 9, 2, 43, 2, -1, 1),
    Sketcher.Constraint("Symmetric", 11, 2, 45, 2, -1, 1),
    Sketcher.Constraint("Symmetric", 13, 2, 47, 2, -1, 1),
    Sketcher.Constraint("Symmetric", 15, 2, 49, 2, -1, 1),
    Sketcher.Constraint("Symmetric", 17, 2, 51, 2, -1, 1),
    Sketcher.Constraint("Symmetric", 19, 2, 53, 2, -1, 1),
    Sketcher.Constraint("Symmetric", 68, 2, 70, 2, -1, 1),
    Sketcher.Constraint("Symmetric", 23, 3, 41, 3, -2),
    Sketcher.Constraint("Symmetric", 30, 2, 33, 2, -2),
    Sketcher.Constraint("Symmetric", 25, 2, 38, 2, -2),
    Sketcher.Constraint("Symmetric", 20, 2, 43, 2, -2),
    Sketcher.Constraint("Symmetric", 18, 2, 45, 2, -2),
    Sketcher.Constraint("Symmetric", 16, 2, 47, 2, -2),
    Sketcher.Constraint("Horizontal", 66, 3, 73, 3),
    Sketcher.Constraint("Horizontal", 79, 3, 4, 2),
    Sketcher.Constraint("Horizontal", 75, 3, 24, 2),
    Sketcher.Constraint("Horizontal", 28, 2, 31, 2),
    Sketcher.Constraint("Horizontal", 5, 2, 58, 2),
    Sketcher.Constraint("Vertical", 4, 2, 10, 2),
    Sketcher.Constraint("Vertical", 11, 2, 14, 2),
    Sketcher.Constraint("Vertical", 43, 2, 54, 2),
    Sketcher.Constraint("Vertical", 29, 2, 64, 1),
    Sketcher.Constraint("Vertical", 35, 2, 75, 1),
    Sketcher.Constraint("Equal", 20, 30),
    Sketcher.Constraint("Equal", 52, 0),
    Sketcher.Constraint("Equal", 59, 9),
    Sketcher.Constraint("Equal", 9, 11),
    Sketcher.Constraint("Equal", 54, 13),
    Sketcher.Constraint("Equal", 32, 15),
    Sketcher.Constraint("Equal", 26, 29),
    Sketcher.Constraint("Radius", 1, 1.0),
    Sketcher.Constraint("Radius", 7, 0.4),
    Sketcher.Constraint("Radius", 60, 0.5),
    Sketcher.Constraint("DistanceX", 2, 2, 2, 1, 28.0),
    Sketcher.Constraint("DistanceX", 10, 2, 10, 1, 3.0),
    Sketcher.Constraint("DistanceX", 28, 1, 28, 2, 6.0),
    Sketcher.Constraint("DistanceX", 63, 1, 63, 2, 2.0),
    Sketcher.Constraint("DistanceX", 68, 1, 68, 2, 12.0),
    Sketcher.Constraint("DistanceY", 61, 1, 61, 2, 23.0),
    Sketcher.Constraint("DistanceX", 5, 1, 5, 2, 1.5),
    Sketcher.Constraint("DistanceX", 12, 1, 12, 2, 2.5),
    Sketcher.Constraint("DistanceY", 69, 2, 69, 1, 23.5),
])
pad1 = body.newObject("PartDesign::Pad", "Pad")
pad1.Profile = sketch1
pad1.Length = 637
pad1.Midplane = True

# Sketch on XZ plane
sketch2 = body.newObject("Sketcher::SketchObject", "Sketch001")
sketch2.AttachmentSupport = (doc.getObject("XZ_Plane"), [""])
sketch2.MapMode = "FlatFace"
sketch2.AttachmentOffset = App.Placement(Vector(0, 0, -15), App.Rotation())
sketch2.addGeometry([
    Part.Circle(Vector(-298.5, 0, 0), Vector(0, 0, 1), 2.5),
    Part.Circle(Vector(-283.5, 0, 0), Vector(0, 0, 1), 2.5),
    Part.Circle(Vector(283.5, 0, 0), Vector(0, 0, 1), 2.5),
    Part.Circle(Vector(298.5, 0, 0), Vector(0, 0, 1), 2.5),
], False)
sketch2.addConstraint([
    Sketcher.Constraint("Equal", 0, 1),
    Sketcher.Constraint("Equal", 1, 2),
    Sketcher.Constraint("Equal", 2, 3),
    Sketcher.Constraint("Symmetric", 1, 3, 2, 3, -1, 1),
    Sketcher.Constraint("Symmetric", 0, 3, 3, 3, -1, 1),
    Sketcher.Constraint("PointOnObject", 0, 3, -1),
    Sketcher.Constraint("PointOnObject", 1, 3, -1),
    Sketcher.Constraint("Diameter", 0, 5.0),
    Sketcher.Constraint("DistanceX", 0, 3, 1, 3, 15.0),
    Sketcher.Constraint("DistanceX", 1, 3, 2, 3, 567.0),
])
doc.recompute()
hole = body.newObject("PartDesign::Hole", "Hole")
hole.Profile = sketch2
hole.ThreadType = "None"
hole.Diameter = 5
hole.DepthType = "Dimension"
hole.Depth = 15
hole.DrillPoint = "Angled"
hole.DrillPointAngle = 118
hole.Reversed = True

# Sketch on XY plane
sketch3 = body.newObject("Sketcher::SketchObject", "Sketch002")
sketch3.AttachmentSupport = (doc.getObject("XY_Plane"), [""])
sketch3.MapMode = "FlatFace"
sketch3.AttachmentOffset = App.Placement(Vector(0, 0, -15), App.Rotation())
sketch3.addGeometry([
    Part.Circle(Vector(-298.5, 0, 0), Vector(0, 0, 1), 2.5),
    Part.Circle(Vector(-283.5, 0, 0), Vector(0, 0, 1), 2.5),
], False)
sketch3.addConstraint([
    Sketcher.Constraint("Equal", 0, 1),
    Sketcher.Constraint("PointOnObject", 0, 3, -1),
    Sketcher.Constraint("PointOnObject", 1, 3, -1),
    Sketcher.Constraint("Diameter", 0, 5.0),
    Sketcher.Constraint("DistanceX", 0, 3, 1, 3, 15.0),
    Sketcher.Constraint("DistanceX", 0, 3, -1, 1, 298.5),
])
doc.recompute()
hole2 = body.newObject("PartDesign::Hole", "Hole001")
hole2.Profile = sketch3
hole2.ThreadType = "None"
hole2.Diameter = 5
hole2.DepthType = "Dimension"
hole2.Depth = 15
hole2.DrillPoint = "Angled"
hole2.DrillPointAngle = 118
hole2.Reversed = True

# Sketch on XY plane
sketch4 = body.newObject("Sketcher::SketchObject", "Sketch003")
sketch4.AttachmentSupport = (doc.getObject("XY_Plane"), [""])
sketch4.MapMode = "FlatFace"
sketch4.AttachmentOffset = App.Placement(Vector(0, 0, -15), App.Rotation())
sketch4.addGeometry([
    Part.Circle(Vector(303.5, 0, 0), Vector(0, 0, 1), 1.6),  # 0
    Part.Circle(Vector(118.5, 0, 0), Vector(0, 0, 1), 1.6),  # 1
    Part.Circle(Vector(-1.5, 0, 0), Vector(0, 0, 1), 1.6),  # 2
    Part.Circle(Vector(-98.5, 0, 0), Vector(0, 0, 1), 1.6),  # 3
    Part.Circle(Vector(-248.5, 0, 0), Vector(0, 0, 1), 1.6),  # 4
], False)
sketch4.addConstraint([
    Sketcher.Constraint("Equal", 0, 1),
    Sketcher.Constraint("Equal", 1, 2),
    Sketcher.Constraint("Equal", 2, 3),
    Sketcher.Constraint("Equal", 3, 4),
    Sketcher.Constraint("PointOnObject", 0, 3, -1),
    Sketcher.Constraint("PointOnObject", 1, 3, -1),
    Sketcher.Constraint("PointOnObject", 2, 3, -1),
    Sketcher.Constraint("PointOnObject", 3, 3, -1),
    Sketcher.Constraint("PointOnObject", 4, 3, -1),
    Sketcher.Constraint("Diameter", 0, 3.3),
    Sketcher.Constraint("DistanceX", 1, 3, 0, 3, 185.0),
    Sketcher.Constraint("DistanceX", 2, 3, 1, 3, 120.0),
    Sketcher.Constraint("DistanceX", 3, 3, 2, 3, 97.0),
    Sketcher.Constraint("DistanceX", 4, 3, 3, 3, 150.0),
    Sketcher.Constraint("DistanceX", -1, 1, 0, 3, 303.5),
])
doc.recompute()
hole3 = body.newObject("PartDesign::Hole", "Hole002")
hole3.Profile = sketch4
hole3.ThreadType = "None"
hole3.Diameter = 3.3
hole3.DepthType = "Dimension"
hole3.Depth = 10.1
hole3.DrillPoint = "Angled"
hole3.DrillPointAngle = 118
hole3.Reversed = True

doc.recompute()
